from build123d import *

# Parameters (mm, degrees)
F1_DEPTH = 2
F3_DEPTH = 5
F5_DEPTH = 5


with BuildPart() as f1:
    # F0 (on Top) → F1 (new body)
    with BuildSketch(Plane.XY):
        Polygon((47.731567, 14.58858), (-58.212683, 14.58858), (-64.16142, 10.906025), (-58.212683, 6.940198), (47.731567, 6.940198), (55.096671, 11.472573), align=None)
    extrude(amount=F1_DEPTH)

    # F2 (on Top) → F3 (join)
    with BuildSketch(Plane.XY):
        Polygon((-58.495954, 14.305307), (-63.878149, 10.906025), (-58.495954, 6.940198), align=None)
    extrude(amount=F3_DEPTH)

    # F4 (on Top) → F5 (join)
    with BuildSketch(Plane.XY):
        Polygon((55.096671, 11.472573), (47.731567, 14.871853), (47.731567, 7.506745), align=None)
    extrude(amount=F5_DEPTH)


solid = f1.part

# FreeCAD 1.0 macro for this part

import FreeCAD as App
import Part
import Sketcher

V = App.Vector

doc = App.newDocument("Part")
body = doc.addObject("PartDesign::Body", "Body")

sketch1 = body.newObject("Sketcher::SketchObject", "Sketch")
sketch1.AttachmentSupport = (doc.getObject("XY_Plane"), [""])
sketch1.MapMode = "FlatFace"
sketch1.addGeometry([
    Part.LineSegment(V(48, 15, 0), V(-58, 15, 0)),
    Part.LineSegment(V(-58, 15, 0), V(-64, 11, 0)),
    Part.LineSegment(V(-64, 11, 0), V(-58, 7, 0)),
    Part.LineSegment(V(-58, 7, 0), V(48, 7, 0)),
    Part.LineSegment(V(48, 7, 0), V(55, 11, 0)),
    Part.LineSegment(V(55, 11, 0), V(48, 15, 0)),
], False)
sketch1.addConstraint([
    Sketcher.Constraint("Coincident", 0, 2, 1, 1),
    Sketcher.Constraint("Coincident", 1, 2, 2, 1),
    Sketcher.Constraint("Coincident", 2, 2, 3, 1),
    Sketcher.Constraint("Coincident", 3, 2, 4, 1),
    Sketcher.Constraint("Coincident", 4, 2, 5, 1),
    Sketcher.Constraint("Coincident", 5, 2, 0, 1),
    Sketcher.Constraint("Horizontal", 0),
    Sketcher.Constraint("Horizontal", 3),
    Sketcher.Constraint("Vertical", 0, 2, 2, 2),
    Sketcher.Constraint("Vertical", 3, 2, 5, 2),
    Sketcher.Constraint("DistanceX", 0, 2, 0, 1, 105.94425),
    Sketcher.Constraint("Distance", 4, 8.647958),
    Sketcher.Constraint("Distance", 5, 7.997141),
    Sketcher.Constraint("DistanceY", -1, 1, 0, 2, 14.58858),
    Sketcher.Constraint("DistanceX", 1, 2, -1, 1, 64.16142),
    Sketcher.Constraint("DistanceX", -1, 1, 4, 2, 55.096671),
    Sketcher.Constraint("DistanceY", 1, 2, 4, 2, 0.566548),
    Sketcher.Constraint("Distance", 1, 6.996334),
])
pad1 = body.newObject("PartDesign::Pad", "Pad")
pad1.Profile = sketch1
pad1.Length = 2

sketch2 = body.newObject("Sketcher::SketchObject", "Sketch001")
sketch2.AttachmentSupport = (doc.getObject("XY_Plane"), [""])
sketch2.MapMode = "FlatFace"
sketch2.addGeometry([
    Part.LineSegment(V(-58, 14, 0), V(-64, 11, 0)),
    Part.LineSegment(V(-64, 11, 0), V(-58, 7, 0)),
    Part.LineSegment(V(-58, 7, 0), V(-58, 14, 0)),
], False)
sketch2.addConstraint([
    Sketcher.Constraint("Coincident", 0, 2, 1, 1),
    Sketcher.Constraint("Coincident", 1, 2, 2, 1),
    Sketcher.Constraint("Coincident", 2, 2, 0, 1),
    Sketcher.Constraint("Vertical", 2),
    Sketcher.Constraint("DistanceY", 2, 1, 2, 2, 7.365109),
    Sketcher.Constraint("Distance", 0, 6.365779),
    Sketcher.Constraint("DistanceX", 0, 2, -1, 1, 63.878149),
    Sketcher.Constraint("Distance", 1, 6.685492),
    Sketcher.Constraint("DistanceY", -1, 1, 0, 2, 10.906025),
])
pad2 = body.newObject("PartDesign::Pad", "Pad001")
pad2.Profile = sketch2
pad2.Length = 5

sketch3 = body.newObject("Sketcher::SketchObject", "Sketch002")
sketch3.AttachmentSupport = (doc.getObject("XY_Plane"), [""])
sketch3.MapMode = "FlatFace"
sketch3.addGeometry([
    Part.LineSegment(V(55, 11, 0), V(48, 15, 0)),
    Part.LineSegment(V(48, 15, 0), V(48, 8, 0)),
    Part.LineSegment(V(48, 8, 0), V(55, 11, 0)),
], False)
sketch3.addConstraint([
    Sketcher.Constraint("Coincident", 0, 2, 1, 1),
    Sketcher.Constraint("Coincident", 1, 2, 2, 1),
    Sketcher.Constraint("Coincident", 2, 2, 0, 1),
    Sketcher.Constraint("Vertical", 1),
    Sketcher.Constraint("DistanceY", 1, 2, 1, 1, 7.365108),
    Sketcher.Constraint("Distance", 0, 8.111711),
    Sketcher.Constraint("Distance", 2, 8.36496),
    Sketcher.Constraint("DistanceX", -1, 1, 2, 2, 55.096671),
    Sketcher.Constraint("DistanceY", -1, 1, 0, 2, 14.871853),
])
pad3 = body.newObject("PartDesign::Pad", "Pad002")
pad3.Profile = sketch3
pad3.Length = 5

doc.recompute()
